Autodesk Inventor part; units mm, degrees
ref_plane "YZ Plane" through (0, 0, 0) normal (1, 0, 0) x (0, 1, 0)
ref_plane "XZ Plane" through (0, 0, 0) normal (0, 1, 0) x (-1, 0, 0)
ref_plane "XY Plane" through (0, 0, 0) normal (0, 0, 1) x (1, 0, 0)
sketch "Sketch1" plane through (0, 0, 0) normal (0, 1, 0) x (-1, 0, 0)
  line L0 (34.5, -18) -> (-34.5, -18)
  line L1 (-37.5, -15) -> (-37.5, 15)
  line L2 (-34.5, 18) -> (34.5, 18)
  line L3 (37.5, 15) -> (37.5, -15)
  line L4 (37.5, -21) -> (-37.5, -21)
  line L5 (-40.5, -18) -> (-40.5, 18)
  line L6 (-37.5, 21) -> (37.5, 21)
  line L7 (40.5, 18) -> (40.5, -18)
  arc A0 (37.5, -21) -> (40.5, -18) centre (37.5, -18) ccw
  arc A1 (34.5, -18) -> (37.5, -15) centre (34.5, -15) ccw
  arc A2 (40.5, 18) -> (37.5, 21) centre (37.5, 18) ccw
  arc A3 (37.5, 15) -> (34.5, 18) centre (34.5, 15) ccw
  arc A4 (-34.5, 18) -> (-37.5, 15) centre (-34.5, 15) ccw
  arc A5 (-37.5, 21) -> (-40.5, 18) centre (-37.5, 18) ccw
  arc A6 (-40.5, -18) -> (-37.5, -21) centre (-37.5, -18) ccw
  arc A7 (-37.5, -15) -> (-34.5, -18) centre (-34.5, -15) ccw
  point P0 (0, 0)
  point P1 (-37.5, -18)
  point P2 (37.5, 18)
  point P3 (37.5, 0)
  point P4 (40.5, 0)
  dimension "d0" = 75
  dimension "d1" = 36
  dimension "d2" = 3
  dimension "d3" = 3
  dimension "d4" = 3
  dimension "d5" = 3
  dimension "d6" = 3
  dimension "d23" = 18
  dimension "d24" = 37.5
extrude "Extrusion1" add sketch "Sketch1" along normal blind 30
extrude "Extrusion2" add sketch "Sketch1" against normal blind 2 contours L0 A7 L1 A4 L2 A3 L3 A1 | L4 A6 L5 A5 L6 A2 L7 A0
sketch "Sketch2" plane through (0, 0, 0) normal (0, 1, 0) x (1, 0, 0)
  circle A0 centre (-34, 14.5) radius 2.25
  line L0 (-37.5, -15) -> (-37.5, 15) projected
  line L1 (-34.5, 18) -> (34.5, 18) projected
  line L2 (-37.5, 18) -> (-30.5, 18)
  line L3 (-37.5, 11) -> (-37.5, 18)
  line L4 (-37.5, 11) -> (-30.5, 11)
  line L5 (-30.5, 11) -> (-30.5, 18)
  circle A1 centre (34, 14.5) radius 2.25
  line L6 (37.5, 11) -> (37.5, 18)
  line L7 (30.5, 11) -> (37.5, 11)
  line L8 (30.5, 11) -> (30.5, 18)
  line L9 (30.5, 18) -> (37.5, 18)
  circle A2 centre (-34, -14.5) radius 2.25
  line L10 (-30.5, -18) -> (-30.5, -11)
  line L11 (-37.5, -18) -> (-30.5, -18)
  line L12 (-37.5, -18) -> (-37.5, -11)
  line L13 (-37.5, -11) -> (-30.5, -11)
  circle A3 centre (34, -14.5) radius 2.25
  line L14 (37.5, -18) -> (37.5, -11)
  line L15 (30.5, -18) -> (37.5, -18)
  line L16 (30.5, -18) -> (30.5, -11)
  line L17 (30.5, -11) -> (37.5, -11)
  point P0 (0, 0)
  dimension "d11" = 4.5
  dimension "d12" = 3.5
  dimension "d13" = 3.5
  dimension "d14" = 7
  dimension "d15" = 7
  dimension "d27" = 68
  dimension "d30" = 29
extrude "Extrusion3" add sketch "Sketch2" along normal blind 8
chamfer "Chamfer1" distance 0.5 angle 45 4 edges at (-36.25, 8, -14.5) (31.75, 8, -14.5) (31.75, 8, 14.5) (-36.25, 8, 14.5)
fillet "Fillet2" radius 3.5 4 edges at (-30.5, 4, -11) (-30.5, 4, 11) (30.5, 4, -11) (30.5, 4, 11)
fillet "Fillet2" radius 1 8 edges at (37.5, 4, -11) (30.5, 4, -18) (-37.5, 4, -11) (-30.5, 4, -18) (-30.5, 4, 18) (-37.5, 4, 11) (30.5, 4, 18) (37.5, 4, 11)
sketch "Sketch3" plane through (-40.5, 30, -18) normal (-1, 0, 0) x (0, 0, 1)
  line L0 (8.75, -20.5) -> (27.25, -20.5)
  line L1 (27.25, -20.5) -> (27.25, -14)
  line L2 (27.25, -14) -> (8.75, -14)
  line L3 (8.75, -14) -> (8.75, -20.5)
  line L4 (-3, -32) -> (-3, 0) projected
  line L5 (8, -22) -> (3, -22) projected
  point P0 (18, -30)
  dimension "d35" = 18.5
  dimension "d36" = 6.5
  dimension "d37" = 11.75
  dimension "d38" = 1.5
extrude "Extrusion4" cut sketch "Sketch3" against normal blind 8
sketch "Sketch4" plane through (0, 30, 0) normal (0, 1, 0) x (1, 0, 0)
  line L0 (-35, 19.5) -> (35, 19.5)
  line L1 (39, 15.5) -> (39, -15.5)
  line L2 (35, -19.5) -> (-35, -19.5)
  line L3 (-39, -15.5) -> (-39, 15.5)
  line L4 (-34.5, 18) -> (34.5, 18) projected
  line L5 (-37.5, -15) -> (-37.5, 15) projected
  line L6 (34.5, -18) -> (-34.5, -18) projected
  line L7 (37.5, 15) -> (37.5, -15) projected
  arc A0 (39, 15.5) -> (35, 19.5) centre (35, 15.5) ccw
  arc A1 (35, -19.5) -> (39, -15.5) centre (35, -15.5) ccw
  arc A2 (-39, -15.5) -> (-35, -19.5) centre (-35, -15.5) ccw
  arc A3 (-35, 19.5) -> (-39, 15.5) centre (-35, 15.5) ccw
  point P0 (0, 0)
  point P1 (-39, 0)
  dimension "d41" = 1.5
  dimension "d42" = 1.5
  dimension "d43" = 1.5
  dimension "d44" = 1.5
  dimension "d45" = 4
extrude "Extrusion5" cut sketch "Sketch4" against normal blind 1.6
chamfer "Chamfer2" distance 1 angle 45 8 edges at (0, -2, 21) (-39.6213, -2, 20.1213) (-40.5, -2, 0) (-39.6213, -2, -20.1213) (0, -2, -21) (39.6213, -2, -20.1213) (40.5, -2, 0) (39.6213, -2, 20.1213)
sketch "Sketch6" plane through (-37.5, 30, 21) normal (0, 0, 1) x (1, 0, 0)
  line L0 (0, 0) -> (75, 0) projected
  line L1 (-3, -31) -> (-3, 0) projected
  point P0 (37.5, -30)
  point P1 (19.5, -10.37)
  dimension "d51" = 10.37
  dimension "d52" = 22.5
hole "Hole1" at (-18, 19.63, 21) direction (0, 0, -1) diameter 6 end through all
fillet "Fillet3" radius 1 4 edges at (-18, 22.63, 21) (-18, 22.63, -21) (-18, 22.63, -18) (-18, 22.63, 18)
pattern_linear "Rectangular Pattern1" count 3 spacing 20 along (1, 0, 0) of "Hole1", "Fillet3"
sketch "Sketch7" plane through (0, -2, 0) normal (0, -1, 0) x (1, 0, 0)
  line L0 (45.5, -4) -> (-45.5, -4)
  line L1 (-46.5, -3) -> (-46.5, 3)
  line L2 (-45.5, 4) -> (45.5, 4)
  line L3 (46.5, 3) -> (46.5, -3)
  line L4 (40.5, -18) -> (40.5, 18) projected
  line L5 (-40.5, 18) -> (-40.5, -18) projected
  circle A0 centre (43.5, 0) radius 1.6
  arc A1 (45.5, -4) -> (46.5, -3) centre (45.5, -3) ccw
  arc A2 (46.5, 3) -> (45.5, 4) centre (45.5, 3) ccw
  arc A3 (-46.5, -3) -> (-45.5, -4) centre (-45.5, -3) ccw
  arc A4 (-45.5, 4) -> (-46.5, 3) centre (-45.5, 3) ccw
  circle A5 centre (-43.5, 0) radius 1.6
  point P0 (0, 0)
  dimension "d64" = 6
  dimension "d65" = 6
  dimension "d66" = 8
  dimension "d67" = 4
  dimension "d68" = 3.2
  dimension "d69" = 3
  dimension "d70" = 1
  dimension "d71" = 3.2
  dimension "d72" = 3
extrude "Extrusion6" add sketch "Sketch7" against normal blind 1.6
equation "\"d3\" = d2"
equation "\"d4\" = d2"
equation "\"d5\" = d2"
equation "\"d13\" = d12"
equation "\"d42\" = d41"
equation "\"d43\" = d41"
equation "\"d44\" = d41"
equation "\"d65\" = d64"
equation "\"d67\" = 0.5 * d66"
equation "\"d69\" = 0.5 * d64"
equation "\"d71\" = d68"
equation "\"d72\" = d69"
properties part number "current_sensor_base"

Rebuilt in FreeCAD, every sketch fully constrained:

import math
import FreeCAD as App
import Part
import Sketcher
Q = App.Units.Quantity


def edges_at(feature, points):
    """Names of the edges that pass closest to the given points."""
    edges = feature.Shape.Edges
    near = lambda p: min(range(len(edges)), key=lambda i: edges[i].distToShape(Part.Vertex(*p))[0])
    return sorted({f"Edge{near(p) + 1}" for p in points})


def add_polygon(sketch, points):
    """Adds a closed chain of lines whose ends are joined by coincident constraints."""
    first, n = sketch.GeometryCount, len(points)
    for a, b in zip(points, points[1:] + points[:1]):
        sketch.addGeometry(Part.LineSegment(App.Vector(*a, 0), App.Vector(*b, 0)), False)
    for i in range(n):
        sketch.addConstraint(Sketcher.Constraint("Coincident", first + i, 2, first + (i + 1) % n, 1))

doc = App.newDocument("Part")
body = doc.addObject("PartDesign::Body", "Body")

# Sketch on XZ plane
sketch1 = doc.addObject("Sketcher::SketchObject", "Sketch")
body.addObject(sketch1)
sketch1.AttachmentSupport = (doc.XZ_Plane, [""])
sketch1.MapMode = "FlatFace"
sketch1.addGeometry(Part.LineSegment(App.Vector(37.5, -21, 0), App.Vector(-37.5, -21, 0)), False)
sketch1.addGeometry(Part.ArcOfCircle(Part.Circle(App.Vector(-37.5, -18, 0), App.Vector(0, 0, 1), 3), math.radians(180), math.radians(270)), False)
sketch1.addGeometry(Part.LineSegment(App.Vector(-40.5, -18, 0), App.Vector(-40.5, 18, 0)), False)
sketch1.addGeometry(Part.ArcOfCircle(Part.Circle(App.Vector(-37.5, 18, 0), App.Vector(0, 0, 1), 3), math.radians(90), math.radians(180)), False)
sketch1.addGeometry(Part.LineSegment(App.Vector(-37.5, 21, 0), App.Vector(37.5, 21, 0)), False)
sketch1.addGeometry(Part.ArcOfCircle(Part.Circle(App.Vector(37.5, 18, 0), App.Vector(0, 0, 1), 3), math.radians(0), math.radians(90)), False)
sketch1.addGeometry(Part.LineSegment(App.Vector(40.5, 18, 0), App.Vector(40.5, -18, 0)), False)
sketch1.addGeometry(Part.ArcOfCircle(Part.Circle(App.Vector(37.5, -18, 0), App.Vector(0, 0, 1), 3), math.radians(-90), math.radians(0)), False)
sketch1.addGeometry(Part.ArcOfCircle(Part.Circle(App.Vector(-34.5, -15, 0), App.Vector(0, 0, 1), 3), math.radians(180), math.radians(270)), False)
sketch1.addGeometry(Part.LineSegment(App.Vector(-34.5, -18, 0), App.Vector(34.5, -18, 0)), False)
sketch1.addGeometry(Part.ArcOfCircle(Part.Circle(App.Vector(34.5, -15, 0), App.Vector(0, 0, 1), 3), math.radians(-90), math.radians(0)), False)
sketch1.addGeometry(Part.LineSegment(App.Vector(37.5, -15, 0), App.Vector(37.5, 15, 0)), False)
sketch1.addGeometry(Part.ArcOfCircle(Part.Circle(App.Vector(34.5, 15, 0), App.Vector(0, 0, 1), 3), math.radians(0), math.radians(90)), False)
sketch1.addGeometry(Part.LineSegment(App.Vector(34.5, 18, 0), App.Vector(-34.5, 18, 0)), False)
sketch1.addGeometry(Part.ArcOfCircle(Part.Circle(App.Vector(-34.5, 15, 0), App.Vector(0, 0, 1), 3), math.radians(90), math.radians(180)), False)
sketch1.addGeometry(Part.LineSegment(App.Vector(-37.5, 15, 0), App.Vector(-37.5, -15, 0)), False)
sketch1.addConstraint(Sketcher.Constraint("Tangent", 0, 2, 1, 2))
sketch1.addConstraint(Sketcher.Constraint("Tangent", 1, 1, 2, 1))
sketch1.addConstraint(Sketcher.Constraint("Tangent", 2, 2, 3, 2))
sketch1.addConstraint(Sketcher.Constraint("Tangent", 3, 1, 4, 1))
sketch1.addConstraint(Sketcher.Constraint("Tangent", 4, 2, 5, 2))
sketch1.addConstraint(Sketcher.Constraint("Tangent", 5, 1, 6, 1))
sketch1.addConstraint(Sketcher.Constraint("Tangent", 6, 2, 7, 2))
sketch1.addConstraint(Sketcher.Constraint("Tangent", 7, 1, 0, 1))
sketch1.addConstraint(Sketcher.Constraint("Tangent", 8, 2, 9, 1))
sketch1.addConstraint(Sketcher.Constraint("Tangent", 9, 2, 10, 1))
sketch1.addConstraint(Sketcher.Constraint("Tangent", 10, 2, 11, 1))
sketch1.addConstraint(Sketcher.Constraint("Tangent", 11, 2, 12, 1))
sketch1.addConstraint(Sketcher.Constraint("Tangent", 12, 2, 13, 1))
sketch1.addConstraint(Sketcher.Constraint("Tangent", 13, 2, 14, 1))
sketch1.addConstraint(Sketcher.Constraint("Tangent", 14, 2, 15, 1))
sketch1.addConstraint(Sketcher.Constraint("Tangent", 15, 2, 8, 1))
sketch1.addConstraint(Sketcher.Constraint("Horizontal", 0))
sketch1.addConstraint(Sketcher.Constraint("Vertical", 2))
sketch1.addConstraint(Sketcher.Constraint("Horizontal", 4))
sketch1.addConstraint(Sketcher.Constraint("Vertical", 6))
sketch1.addConstraint(Sketcher.Constraint("Horizontal", 9))
sketch1.addConstraint(Sketcher.Constraint("Vertical", 11))
sketch1.addConstraint(Sketcher.Constraint("Horizontal", 13))
sketch1.addConstraint(Sketcher.Constraint("Vertical", 15))
sketch1.addConstraint(Sketcher.Constraint("Equal", 1, 3))
sketch1.addConstraint(Sketcher.Constraint("Equal", 3, 5))
sketch1.addConstraint(Sketcher.Constraint("Equal", 5, 7))
sketch1.addConstraint(Sketcher.Constraint("Equal", 7, 8))
sketch1.addConstraint(Sketcher.Constraint("Equal", 8, 10))
sketch1.addConstraint(Sketcher.Constraint("Equal", 10, 12))
sketch1.addConstraint(Sketcher.Constraint("Equal", 12, 14))
sketch1.addConstraint(Sketcher.Constraint("Symmetric", 1, 3, 5, 3, -1, 1))
sketch1.addConstraint(Sketcher.Constraint("Symmetric", 8, 3, 12, 3, -1, 1))
sketch1.addConstraint(Sketcher.Constraint("Horizontal", 6, 2, 8, 2))
sketch1.addConstraint(Sketcher.Constraint("Vertical", 7, 1, 10, 2))
sketch1.addConstraint(Sketcher.Constraint("Radius", 1, Q("3 mm")))
sketch1.addConstraint(Sketcher.Constraint("DistanceX", 0, 2, 0, 1, Q("75 mm")))
sketch1.addConstraint(Sketcher.Constraint("DistanceY", 2, 1, 2, 2, Q("36 mm")))
pad1 = doc.addObject("PartDesign::Pad", "Pad")
body.addObject(pad1)
pad1.Profile = sketch1
pad1.Length = 30
pad1.Reversed = True

# Sketch on XZ plane
sketch2 = doc.addObject("Sketcher::SketchObject", "Sketch001")
body.addObject(sketch2)
sketch2.AttachmentSupport = (doc.XZ_Plane, [""])
sketch2.MapMode = "FlatFace"
sketch2.addGeometry(Part.LineSegment(App.Vector(37.5, -21, 0), App.Vector(-37.5, -21, 0)), False)
sketch2.addGeometry(Part.ArcOfCircle(Part.Circle(App.Vector(-37.5, -18, 0), App.Vector(0, 0, 1), 3), math.radians(180), math.radians(270)), False)
sketch2.addGeometry(Part.LineSegment(App.Vector(-40.5, -18, 0), App.Vector(-40.5, 18, 0)), False)
sketch2.addGeometry(Part.ArcOfCircle(Part.Circle(App.Vector(-37.5, 18, 0), App.Vector(0, 0, 1), 3), math.radians(90), math.radians(180)), False)
sketch2.addGeometry(Part.LineSegment(App.Vector(-37.5, 21, 0), App.Vector(37.5, 21, 0)), False)
sketch2.addGeometry(Part.ArcOfCircle(Part.Circle(App.Vector(37.5, 18, 0), App.Vector(0, 0, 1), 3), math.radians(0), math.radians(90)), False)
sketch2.addGeometry(Part.LineSegment(App.Vector(40.5, 18, 0), App.Vector(40.5, -18, 0)), False)
sketch2.addGeometry(Part.ArcOfCircle(Part.Circle(App.Vector(37.5, -18, 0), App.Vector(0, 0, 1), 3), math.radians(-90), math.radians(0)), False)
sketch2.addConstraint(Sketcher.Constraint("Tangent", 0, 2, 1, 2))
sketch2.addConstraint(Sketcher.Constraint("Tangent", 1, 1, 2, 1))
sketch2.addConstraint(Sketcher.Constraint("Tangent", 2, 2, 3, 2))
sketch2.addConstraint(Sketcher.Constraint("Tangent", 3, 1, 4, 1))
sketch2.addConstraint(Sketcher.Constraint("Tangent", 4, 2, 5, 2))
sketch2.addConstraint(Sketcher.Constraint("Tangent", 5, 1, 6, 1))
sketch2.addConstraint(Sketcher.Constraint("Tangent", 6, 2, 7, 2))
sketch2.addConstraint(Sketcher.Constraint("Tangent", 7, 1, 0, 1))
sketch2.addConstraint(Sketcher.Constraint("Horizontal", 0))
sketch2.addConstraint(Sketcher.Constraint("Vertical", 2))
sketch2.addConstraint(Sketcher.Constraint("Horizontal", 4))
sketch2.addConstraint(Sketcher.Constraint("Vertical", 6))
sketch2.addConstraint(Sketcher.Constraint("Equal", 1, 3))
sketch2.addConstraint(Sketcher.Constraint("Equal", 3, 5))
sketch2.addConstraint(Sketcher.Constraint("Equal", 5, 7))
sketch2.addConstraint(Sketcher.Constraint("Symmetric", 1, 3, 5, 3, -1, 1))
sketch2.addConstraint(Sketcher.Constraint("Radius", 1, Q("3 mm")))
sketch2.addConstraint(Sketcher.Constraint("DistanceX", 0, 2, 0, 1, Q("75 mm")))
sketch2.addConstraint(Sketcher.Constraint("DistanceY", 2, 1, 2, 2, Q("36 mm")))
pad2 = doc.addObject("PartDesign::Pad", "Pad001")
body.addObject(pad2)
pad2.Profile = sketch2
pad2.Length = 2

# Sketch on XZ plane
sketch3 = doc.addObject("Sketcher::SketchObject", "Sketch002")
body.addObject(sketch3)
sketch3.AttachmentSupport = (doc.XZ_Plane, [""])
sketch3.MapMode = "FlatFace"
add_polygon(sketch3, [(37.5, -18), (30.5, -18), (30.5, -11), (37.5, -11)])  # lines 0-3
sketch3.addGeometry(Part.Circle(App.Vector(34, -14.5, 0), App.Vector(0, 0, 1), 2.25), False)  # 4
add_polygon(sketch3, [(-37.5, -18), (-37.5, -11), (-30.5, -11), (-30.5, -18)])  # lines 5-8
sketch3.addGeometry(Part.Circle(App.Vector(-34, -14.5, 0), App.Vector(0, 0, 1), 2.25), False)  # 9
add_polygon(sketch3, [(-37.5, 11), (-37.5, 18), (-30.5, 18), (-30.5, 11)])  # lines 10-13
sketch3.addGeometry(Part.Circle(App.Vector(-34, 14.5, 0), App.Vector(0, 0, 1), 2.25), False)  # 14
add_polygon(sketch3, [(30.5, 18), (37.5, 18), (37.5, 11), (30.5, 11)])  # lines 15-18
sketch3.addGeometry(Part.Circle(App.Vector(34, 14.5, 0), App.Vector(0, 0, 1), 2.25), False)  # 19
sketch3.addConstraint(Sketcher.Constraint("Horizontal", 0))
sketch3.addConstraint(Sketcher.Constraint("Vertical", 1))
sketch3.addConstraint(Sketcher.Constraint("Horizontal", 2))
sketch3.addConstraint(Sketcher.Constraint("Vertical", 3))
sketch3.addConstraint(Sketcher.Constraint("Vertical", 5))
sketch3.addConstraint(Sketcher.Constraint("Horizontal", 6))
sketch3.addConstraint(Sketcher.Constraint("Vertical", 7))
sketch3.addConstraint(Sketcher.Constraint("Horizontal", 8))
sketch3.addConstraint(Sketcher.Constraint("Vertical", 10))
sketch3.addConstraint(Sketcher.Constraint("Horizontal", 11))
sketch3.addConstraint(Sketcher.Constraint("Vertical", 12))
sketch3.addConstraint(Sketcher.Constraint("Horizontal", 13))
sketch3.addConstraint(Sketcher.Constraint("Horizontal", 15))
sketch3.addConstraint(Sketcher.Constraint("Vertical", 16))
sketch3.addConstraint(Sketcher.Constraint("Horizontal", 17))
sketch3.addConstraint(Sketcher.Constraint("Vertical", 18))
sketch3.addConstraint(Sketcher.Constraint("Equal", 4, 9))
sketch3.addConstraint(Sketcher.Constraint("Equal", 9, 14))
sketch3.addConstraint(Sketcher.Constraint("Equal", 14, 19))
sketch3.addConstraint(Sketcher.Constraint("Symmetric", 4, 3, 14, 3, -1, 1))
sketch3.addConstraint(Sketcher.Constraint("Symmetric", 9, 3, 19, 3, -1, 1))
sketch3.addConstraint(Sketcher.Constraint("Symmetric", 3, 2, 10, 2, -1, 1))
sketch3.addConstraint(Sketcher.Constraint("Symmetric", 1, 2, 12, 2, -1, 1))
sketch3.addConstraint(Sketcher.Constraint("Symmetric", 8, 2, 15, 2, -1, 1))
sketch3.addConstraint(Sketcher.Constraint("Symmetric", 6, 2, 17, 2, -1, 1))
sketch3.addConstraint(Sketcher.Constraint("Symmetric", 4, 3, 9, 3, -2))
sketch3.addConstraint(Sketcher.Constraint("Symmetric", 2, 2, 5, 2, -2))
sketch3.addConstraint(Sketcher.Constraint("Symmetric", 0, 2, 7, 2, -2))
sketch3.addConstraint(Sketcher.Constraint("Equal", 17, 1))
sketch3.addConstraint(Sketcher.Constraint("Diameter", 4, Q("4.5 mm")))
sketch3.addConstraint(Sketcher.Constraint("DistanceX", 0, 2, 0, 1, Q("7 mm")))
sketch3.addConstraint(Sketcher.Constraint("DistanceX", 9, 3, 4, 3, Q("68 mm")))
sketch3.addConstraint(Sketcher.Constraint("DistanceY", 9, 3, 14, 3, Q("29 mm")))
sketch3.addConstraint(Sketcher.Constraint("DistanceX", 5, 2, 1, 2, Q("68 mm")))
sketch3.addConstraint(Sketcher.Constraint("DistanceY", 5, 2, 10, 2, Q("29 mm")))
pad3 = doc.addObject("PartDesign::Pad", "Pad002")
body.addObject(pad3)
pad3.Profile = sketch3
pad3.Length = 8
pad3.Reversed = True
doc.recompute()

chamfer = doc.addObject("PartDesign::Chamfer", "Chamfer")
body.addObject(chamfer)
chamfer.Base = (pad3, edges_at(pad3, [
    (-36.25, 8, -14.5),
    (31.75, 8, -14.5),
    (31.75, 8, 14.5),
    (-36.25, 8, 14.5),
]))
chamfer.Size = 0.5
doc.recompute()

fillet = doc.addObject("PartDesign::Fillet", "Fillet")
body.addObject(fillet)
fillet.Base = (chamfer, edges_at(chamfer, [
    (-30.5, 4, -11),
    (-30.5, 4, 11),
    (30.5, 4, -11),
    (30.5, 4, 11),
]))
fillet.Radius = 3.5
doc.recompute()

fillet2 = doc.addObject("PartDesign::Fillet", "Fillet001")
body.addObject(fillet2)
fillet2.Base = (fillet, edges_at(fillet, [
    (37.5, 4, -11),
    (30.5, 4, -18),
    (-37.5, 4, -11),
    (-30.5, 4, -18),
    (-30.5, 4, 18),
    (-37.5, 4, 11),
    (30.5, 4, 18),
    (37.5, 4, 11),
]))
fillet2.Radius = 1

# Sketch on YZ plane
sketch4 = doc.addObject("Sketcher::SketchObject", "Sketch003")
body.addObject(sketch4)
sketch4.AttachmentSupport = (doc.YZ_Plane, [""])
sketch4.MapMode = "FlatFace"
sketch4.AttachmentOffset = App.Placement(App.Vector(0, 0, -40.5), App.Rotation())
add_polygon(sketch4, [(16, -9.25), (9.5, -9.25), (9.5, 9.25), (16, 9.25)])  # lines 0-3
sketch4.addConstraint(Sketcher.Constraint("Horizontal", 0))
sketch4.addConstraint(Sketcher.Constraint("Vertical", 1))
sketch4.addConstraint(Sketcher.Constraint("Horizontal", 2))
sketch4.addConstraint(Sketcher.Constraint("Vertical", 3))
sketch4.addConstraint(Sketcher.Constraint("DistanceX", 0, 2, 0, 1, Q("6.5 mm")))
sketch4.addConstraint(Sketcher.Constraint("DistanceY", 1, 1, 1, 2, Q("18.5 mm")))
sketch4.addConstraint(Sketcher.Constraint("DistanceX", -1, 1, 2, 2, Q("16 mm")))
sketch4.addConstraint(Sketcher.Constraint("DistanceY", 0, 2, -1, 1, Q("9.25 mm")))
pocket1 = doc.addObject("PartDesign::Pocket", "Pocket")
body.addObject(pocket1)
pocket1.Profile = sketch4
pocket1.Length = 8
pocket1.Reversed = True

# Sketch on XZ plane
sketch5 = doc.addObject("Sketcher::SketchObject", "Sketch004")
body.addObject(sketch5)
sketch5.AttachmentSupport = (doc.XZ_Plane, [""])
sketch5.MapMode = "FlatFace"
sketch5.AttachmentOffset = App.Placement(App.Vector(0, 0, -30), App.Rotation())
sketch5.addGeometry(Part.LineSegment(App.Vector(35, -19.5, 0), App.Vector(-35, -19.5, 0)), False)
sketch5.addGeometry(Part.ArcOfCircle(Part.Circle(App.Vector(-35, -15.5, 0), App.Vector(0, 0, 1), 4), math.radians(180), math.radians(270)), False)
sketch5.addGeometry(Part.LineSegment(App.Vector(-39, -15.5, 0), App.Vector(-39, 15.5, 0)), False)
sketch5.addGeometry(Part.ArcOfCircle(Part.Circle(App.Vector(-35, 15.5, 0), App.Vector(0, 0, 1), 4), math.radians(90), math.radians(180)), False)
sketch5.addGeometry(Part.LineSegment(App.Vector(-35, 19.5, 0), App.Vector(35, 19.5, 0)), False)
sketch5.addGeometry(Part.ArcOfCircle(Part.Circle(App.Vector(35, 15.5, 0), App.Vector(0, 0, 1), 4), math.radians(0), math.radians(90)), False)
sketch5.addGeometry(Part.LineSegment(App.Vector(39, 15.5, 0), App.Vector(39, -15.5, 0)), False)
sketch5.addGeometry(Part.ArcOfCircle(Part.Circle(App.Vector(35, -15.5, 0), App.Vector(0, 0, 1), 4), math.radians(-90), math.radians(0)), False)
sketch5.addConstraint(Sketcher.Constraint("Tangent", 0, 2, 1, 2))
sketch5.addConstraint(Sketcher.Constraint("Tangent", 1, 1, 2, 1))
sketch5.addConstraint(Sketcher.Constraint("Tangent", 2, 2, 3, 2))
sketch5.addConstraint(Sketcher.Constraint("Tangent", 3, 1, 4, 1))
sketch5.addConstraint(Sketcher.Constraint("Tangent", 4, 2, 5, 2))
sketch5.addConstraint(Sketcher.Constraint("Tangent", 5, 1, 6, 1))
sketch5.addConstraint(Sketcher.Constraint("Tangent", 6, 2, 7, 2))
sketch5.addConstraint(Sketcher.Constraint("Tangent", 7, 1, 0, 1))
sketch5.addConstraint(Sketcher.Constraint("Horizontal", 0))
sketch5.addConstraint(Sketcher.Constraint("Vertical", 2))
sketch5.addConstraint(Sketcher.Constraint("Horizontal", 4))
sketch5.addConstraint(Sketcher.Constraint("Vertical", 6))
sketch5.addConstraint(Sketcher.Constraint("Equal", 1, 3))
sketch5.addConstraint(Sketcher.Constraint("Equal", 3, 5))
sketch5.addConstraint(Sketcher.Constraint("Equal", 5, 7))
sketch5.addConstraint(Sketcher.Constraint("Symmetric", 1, 3, 5, 3, -1, 1))
sketch5.addConstraint(Sketcher.Constraint("Radius", 1, Q("4 mm")))
sketch5.addConstraint(Sketcher.Constraint("DistanceX", 0, 2, 0, 1, Q("70 mm")))
sketch5.addConstraint(Sketcher.Constraint("DistanceY", 2, 1, 2, 2, Q("31 mm")))
pocket2 = doc.addObject("PartDesign::Pocket", "Pocket001")
body.addObject(pocket2)
pocket2.Profile = sketch5
pocket2.Length = 1.6
pocket2.Reversed = True
doc.recompute()

chamfer2 = doc.addObject("PartDesign::Chamfer", "Chamfer001")
body.addObject(chamfer2)
chamfer2.Base = (pocket2, edges_at(pocket2, [
    (0, -2, 21),
    (-39.621, -2, 20.121),
    (-40.5, -2, 0),
    (-39.621, -2, -20.121),
    (0, -2, -21),
    (39.621, -2, -20.121),
    (40.5, -2, 0),
    (39.621, -2, 20.121),
]))
chamfer2.Size = 1

# Sketch on XY plane
sketch6 = doc.addObject("Sketcher::SketchObject", "Sketch005")
body.addObject(sketch6)
sketch6.AttachmentSupport = (doc.XY_Plane, [""])
sketch6.MapMode = "FlatFace"
sketch6.AttachmentOffset = App.Placement(App.Vector(0, 0, 21), App.Rotation())
sketch6.addGeometry(Part.Circle(App.Vector(-18, 19.63, 0), App.Vector(0, 0, 1), 3), False)
sketch6.addConstraint(Sketcher.Constraint("Diameter", 0, Q("6 mm")))
sketch6.addConstraint(Sketcher.Constraint("DistanceX", 0, 3, -1, 1, Q("18 mm")))
sketch6.addConstraint(Sketcher.Constraint("DistanceY", -1, 1, 0, 3, Q("19.63 mm")))
doc.recompute()
hole = doc.addObject("PartDesign::Hole", "Hole")
body.addObject(hole)
hole.Profile = sketch6
hole.ThreadType = "None"
hole.Diameter = 6
hole.DepthType = "ThroughAll"
doc.recompute()

fillet3 = doc.addObject("PartDesign::Fillet", "Fillet002")
body.addObject(fillet3)
fillet3.Base = (hole, edges_at(hole, [
    (-18, 22.63, 21),
    (-18, 22.63, -21),
    (-18, 22.63, -18),
    (-18, 22.63, 18),
]))
fillet3.Radius = 1
doc.recompute()

linearpattern = doc.addObject("PartDesign::LinearPattern", "LinearPattern")
body.addObject(linearpattern)
linearpattern.Originals = [hole, fillet3]
linearpattern.Direction = (doc.X_Axis, [""])
linearpattern.Mode = "offset"
linearpattern.Offset = 20
linearpattern.Occurrences = 3
body.Tip = linearpattern

# Sketch on XZ plane
sketch7 = doc.addObject("Sketcher::SketchObject", "Sketch006")
body.addObject(sketch7)
sketch7.AttachmentSupport = (doc.XZ_Plane, [""])
sketch7.MapMode = "FlatFace"
sketch7.AttachmentOffset = App.Placement(App.Vector(0, 0, 2), App.Rotation())
sketch7.addGeometry(Part.ArcOfCircle(Part.Circle(App.Vector(45.5, -3, 0), App.Vector(0, 0, 1), 1), math.radians(-90), math.radians(0)), False)
sketch7.addGeometry(Part.LineSegment(App.Vector(46.5, -3, 0), App.Vector(46.5, 3, 0)), False)
sketch7.addGeometry(Part.ArcOfCircle(Part.Circle(App.Vector(45.5, 3, 0), App.Vector(0, 0, 1), 1), math.radians(0), math.radians(90)), False)
sketch7.addGeometry(Part.LineSegment(App.Vector(45.5, 4, 0), App.Vector(-45.5, 4, 0)), False)
sketch7.addGeometry(Part.ArcOfCircle(Part.Circle(App.Vector(-45.5, 3, 0), App.Vector(0, 0, 1), 1), math.radians(90), math.radians(180)), False)
sketch7.addGeometry(Part.LineSegment(App.Vector(-46.5, 3, 0), App.Vector(-46.5, -3, 0)), False)
sketch7.addGeometry(Part.ArcOfCircle(Part.Circle(App.Vector(-45.5, -3, 0), App.Vector(0, 0, 1), 1), math.radians(180), math.radians(270)), False)
sketch7.addGeometry(Part.LineSegment(App.Vector(-45.5, -4, 0), App.Vector(45.5, -4, 0)), False)
sketch7.addGeometry(Part.Circle(App.Vector(43.5, 0, 0), App.Vector(0, 0, 1), 1.6), False)
sketch7.addGeometry(Part.Circle(App.Vector(-43.5, 0, 0), App.Vector(0, 0, 1), 1.6), False)
sketch7.addConstraint(Sketcher.Constraint("Tangent", 0, 2, 1, 1))
sketch7.addConstraint(Sketcher.Constraint("Tangent", 1, 2, 2, 1))
sketch7.addConstraint(Sketcher.Constraint("Tangent", 2, 2, 3, 1))
sketch7.addConstraint(Sketcher.Constraint("Tangent", 3, 2, 4, 1))
sketch7.addConstraint(Sketcher.Constraint("Tangent", 4, 2, 5, 1))
sketch7.addConstraint(Sketcher.Constraint("Tangent", 5, 2, 6, 1))
sketch7.addConstraint(Sketcher.Constraint("Tangent", 6, 2, 7, 1))
sketch7.addConstraint(Sketcher.Constraint("Tangent", 7, 2, 0, 1))
sketch7.addConstraint(Sketcher.Constraint("Vertical", 1))
sketch7.addConstraint(Sketcher.Constraint("Horizontal", 3))
sketch7.addConstraint(Sketcher.Constraint("Vertical", 5))
sketch7.addConstraint(Sketcher.Constraint("Horizontal", 7))
sketch7.addConstraint(Sketcher.Constraint("Equal", 0, 2))
sketch7.addConstraint(Sketcher.Constraint("Equal", 2, 4))
sketch7.addConstraint(Sketcher.Constraint("Equal", 4, 6))
sketch7.addConstraint(Sketcher.Constraint("Equal", 8, 9))
sketch7.addConstraint(Sketcher.Constraint("Symmetric", 0, 3, 4, 3, -1, 1))
sketch7.addConstraint(Sketcher.Constraint("Symmetric", 8, 3, 9, 3, -1, 1))
sketch7.addConstraint(Sketcher.Constraint("PointOnObject", 8, 3, -1))
sketch7.addConstraint(Sketcher.Constraint("Radius", 0, Q("1 mm")))
sketch7.addConstraint(Sketcher.Constraint("Diameter", 8, Q("3.2 mm")))
sketch7.addConstraint(Sketcher.Constraint("DistanceY", 1, 1, 1, 2, Q("6 mm")))
sketch7.addConstraint(Sketcher.Constraint("DistanceX", 8, 3, 0, 2, Q("3 mm")))
sketch7.addConstraint(Sketcher.Constraint("DistanceX", 3, 2, 3, 1, Q("91 mm")))
pad4 = doc.addObject("PartDesign::Pad", "Pad003")
body.addObject(pad4)
pad4.Profile = sketch7
pad4.Length = 1.6
pad4.Reversed = True

doc.recompute()
